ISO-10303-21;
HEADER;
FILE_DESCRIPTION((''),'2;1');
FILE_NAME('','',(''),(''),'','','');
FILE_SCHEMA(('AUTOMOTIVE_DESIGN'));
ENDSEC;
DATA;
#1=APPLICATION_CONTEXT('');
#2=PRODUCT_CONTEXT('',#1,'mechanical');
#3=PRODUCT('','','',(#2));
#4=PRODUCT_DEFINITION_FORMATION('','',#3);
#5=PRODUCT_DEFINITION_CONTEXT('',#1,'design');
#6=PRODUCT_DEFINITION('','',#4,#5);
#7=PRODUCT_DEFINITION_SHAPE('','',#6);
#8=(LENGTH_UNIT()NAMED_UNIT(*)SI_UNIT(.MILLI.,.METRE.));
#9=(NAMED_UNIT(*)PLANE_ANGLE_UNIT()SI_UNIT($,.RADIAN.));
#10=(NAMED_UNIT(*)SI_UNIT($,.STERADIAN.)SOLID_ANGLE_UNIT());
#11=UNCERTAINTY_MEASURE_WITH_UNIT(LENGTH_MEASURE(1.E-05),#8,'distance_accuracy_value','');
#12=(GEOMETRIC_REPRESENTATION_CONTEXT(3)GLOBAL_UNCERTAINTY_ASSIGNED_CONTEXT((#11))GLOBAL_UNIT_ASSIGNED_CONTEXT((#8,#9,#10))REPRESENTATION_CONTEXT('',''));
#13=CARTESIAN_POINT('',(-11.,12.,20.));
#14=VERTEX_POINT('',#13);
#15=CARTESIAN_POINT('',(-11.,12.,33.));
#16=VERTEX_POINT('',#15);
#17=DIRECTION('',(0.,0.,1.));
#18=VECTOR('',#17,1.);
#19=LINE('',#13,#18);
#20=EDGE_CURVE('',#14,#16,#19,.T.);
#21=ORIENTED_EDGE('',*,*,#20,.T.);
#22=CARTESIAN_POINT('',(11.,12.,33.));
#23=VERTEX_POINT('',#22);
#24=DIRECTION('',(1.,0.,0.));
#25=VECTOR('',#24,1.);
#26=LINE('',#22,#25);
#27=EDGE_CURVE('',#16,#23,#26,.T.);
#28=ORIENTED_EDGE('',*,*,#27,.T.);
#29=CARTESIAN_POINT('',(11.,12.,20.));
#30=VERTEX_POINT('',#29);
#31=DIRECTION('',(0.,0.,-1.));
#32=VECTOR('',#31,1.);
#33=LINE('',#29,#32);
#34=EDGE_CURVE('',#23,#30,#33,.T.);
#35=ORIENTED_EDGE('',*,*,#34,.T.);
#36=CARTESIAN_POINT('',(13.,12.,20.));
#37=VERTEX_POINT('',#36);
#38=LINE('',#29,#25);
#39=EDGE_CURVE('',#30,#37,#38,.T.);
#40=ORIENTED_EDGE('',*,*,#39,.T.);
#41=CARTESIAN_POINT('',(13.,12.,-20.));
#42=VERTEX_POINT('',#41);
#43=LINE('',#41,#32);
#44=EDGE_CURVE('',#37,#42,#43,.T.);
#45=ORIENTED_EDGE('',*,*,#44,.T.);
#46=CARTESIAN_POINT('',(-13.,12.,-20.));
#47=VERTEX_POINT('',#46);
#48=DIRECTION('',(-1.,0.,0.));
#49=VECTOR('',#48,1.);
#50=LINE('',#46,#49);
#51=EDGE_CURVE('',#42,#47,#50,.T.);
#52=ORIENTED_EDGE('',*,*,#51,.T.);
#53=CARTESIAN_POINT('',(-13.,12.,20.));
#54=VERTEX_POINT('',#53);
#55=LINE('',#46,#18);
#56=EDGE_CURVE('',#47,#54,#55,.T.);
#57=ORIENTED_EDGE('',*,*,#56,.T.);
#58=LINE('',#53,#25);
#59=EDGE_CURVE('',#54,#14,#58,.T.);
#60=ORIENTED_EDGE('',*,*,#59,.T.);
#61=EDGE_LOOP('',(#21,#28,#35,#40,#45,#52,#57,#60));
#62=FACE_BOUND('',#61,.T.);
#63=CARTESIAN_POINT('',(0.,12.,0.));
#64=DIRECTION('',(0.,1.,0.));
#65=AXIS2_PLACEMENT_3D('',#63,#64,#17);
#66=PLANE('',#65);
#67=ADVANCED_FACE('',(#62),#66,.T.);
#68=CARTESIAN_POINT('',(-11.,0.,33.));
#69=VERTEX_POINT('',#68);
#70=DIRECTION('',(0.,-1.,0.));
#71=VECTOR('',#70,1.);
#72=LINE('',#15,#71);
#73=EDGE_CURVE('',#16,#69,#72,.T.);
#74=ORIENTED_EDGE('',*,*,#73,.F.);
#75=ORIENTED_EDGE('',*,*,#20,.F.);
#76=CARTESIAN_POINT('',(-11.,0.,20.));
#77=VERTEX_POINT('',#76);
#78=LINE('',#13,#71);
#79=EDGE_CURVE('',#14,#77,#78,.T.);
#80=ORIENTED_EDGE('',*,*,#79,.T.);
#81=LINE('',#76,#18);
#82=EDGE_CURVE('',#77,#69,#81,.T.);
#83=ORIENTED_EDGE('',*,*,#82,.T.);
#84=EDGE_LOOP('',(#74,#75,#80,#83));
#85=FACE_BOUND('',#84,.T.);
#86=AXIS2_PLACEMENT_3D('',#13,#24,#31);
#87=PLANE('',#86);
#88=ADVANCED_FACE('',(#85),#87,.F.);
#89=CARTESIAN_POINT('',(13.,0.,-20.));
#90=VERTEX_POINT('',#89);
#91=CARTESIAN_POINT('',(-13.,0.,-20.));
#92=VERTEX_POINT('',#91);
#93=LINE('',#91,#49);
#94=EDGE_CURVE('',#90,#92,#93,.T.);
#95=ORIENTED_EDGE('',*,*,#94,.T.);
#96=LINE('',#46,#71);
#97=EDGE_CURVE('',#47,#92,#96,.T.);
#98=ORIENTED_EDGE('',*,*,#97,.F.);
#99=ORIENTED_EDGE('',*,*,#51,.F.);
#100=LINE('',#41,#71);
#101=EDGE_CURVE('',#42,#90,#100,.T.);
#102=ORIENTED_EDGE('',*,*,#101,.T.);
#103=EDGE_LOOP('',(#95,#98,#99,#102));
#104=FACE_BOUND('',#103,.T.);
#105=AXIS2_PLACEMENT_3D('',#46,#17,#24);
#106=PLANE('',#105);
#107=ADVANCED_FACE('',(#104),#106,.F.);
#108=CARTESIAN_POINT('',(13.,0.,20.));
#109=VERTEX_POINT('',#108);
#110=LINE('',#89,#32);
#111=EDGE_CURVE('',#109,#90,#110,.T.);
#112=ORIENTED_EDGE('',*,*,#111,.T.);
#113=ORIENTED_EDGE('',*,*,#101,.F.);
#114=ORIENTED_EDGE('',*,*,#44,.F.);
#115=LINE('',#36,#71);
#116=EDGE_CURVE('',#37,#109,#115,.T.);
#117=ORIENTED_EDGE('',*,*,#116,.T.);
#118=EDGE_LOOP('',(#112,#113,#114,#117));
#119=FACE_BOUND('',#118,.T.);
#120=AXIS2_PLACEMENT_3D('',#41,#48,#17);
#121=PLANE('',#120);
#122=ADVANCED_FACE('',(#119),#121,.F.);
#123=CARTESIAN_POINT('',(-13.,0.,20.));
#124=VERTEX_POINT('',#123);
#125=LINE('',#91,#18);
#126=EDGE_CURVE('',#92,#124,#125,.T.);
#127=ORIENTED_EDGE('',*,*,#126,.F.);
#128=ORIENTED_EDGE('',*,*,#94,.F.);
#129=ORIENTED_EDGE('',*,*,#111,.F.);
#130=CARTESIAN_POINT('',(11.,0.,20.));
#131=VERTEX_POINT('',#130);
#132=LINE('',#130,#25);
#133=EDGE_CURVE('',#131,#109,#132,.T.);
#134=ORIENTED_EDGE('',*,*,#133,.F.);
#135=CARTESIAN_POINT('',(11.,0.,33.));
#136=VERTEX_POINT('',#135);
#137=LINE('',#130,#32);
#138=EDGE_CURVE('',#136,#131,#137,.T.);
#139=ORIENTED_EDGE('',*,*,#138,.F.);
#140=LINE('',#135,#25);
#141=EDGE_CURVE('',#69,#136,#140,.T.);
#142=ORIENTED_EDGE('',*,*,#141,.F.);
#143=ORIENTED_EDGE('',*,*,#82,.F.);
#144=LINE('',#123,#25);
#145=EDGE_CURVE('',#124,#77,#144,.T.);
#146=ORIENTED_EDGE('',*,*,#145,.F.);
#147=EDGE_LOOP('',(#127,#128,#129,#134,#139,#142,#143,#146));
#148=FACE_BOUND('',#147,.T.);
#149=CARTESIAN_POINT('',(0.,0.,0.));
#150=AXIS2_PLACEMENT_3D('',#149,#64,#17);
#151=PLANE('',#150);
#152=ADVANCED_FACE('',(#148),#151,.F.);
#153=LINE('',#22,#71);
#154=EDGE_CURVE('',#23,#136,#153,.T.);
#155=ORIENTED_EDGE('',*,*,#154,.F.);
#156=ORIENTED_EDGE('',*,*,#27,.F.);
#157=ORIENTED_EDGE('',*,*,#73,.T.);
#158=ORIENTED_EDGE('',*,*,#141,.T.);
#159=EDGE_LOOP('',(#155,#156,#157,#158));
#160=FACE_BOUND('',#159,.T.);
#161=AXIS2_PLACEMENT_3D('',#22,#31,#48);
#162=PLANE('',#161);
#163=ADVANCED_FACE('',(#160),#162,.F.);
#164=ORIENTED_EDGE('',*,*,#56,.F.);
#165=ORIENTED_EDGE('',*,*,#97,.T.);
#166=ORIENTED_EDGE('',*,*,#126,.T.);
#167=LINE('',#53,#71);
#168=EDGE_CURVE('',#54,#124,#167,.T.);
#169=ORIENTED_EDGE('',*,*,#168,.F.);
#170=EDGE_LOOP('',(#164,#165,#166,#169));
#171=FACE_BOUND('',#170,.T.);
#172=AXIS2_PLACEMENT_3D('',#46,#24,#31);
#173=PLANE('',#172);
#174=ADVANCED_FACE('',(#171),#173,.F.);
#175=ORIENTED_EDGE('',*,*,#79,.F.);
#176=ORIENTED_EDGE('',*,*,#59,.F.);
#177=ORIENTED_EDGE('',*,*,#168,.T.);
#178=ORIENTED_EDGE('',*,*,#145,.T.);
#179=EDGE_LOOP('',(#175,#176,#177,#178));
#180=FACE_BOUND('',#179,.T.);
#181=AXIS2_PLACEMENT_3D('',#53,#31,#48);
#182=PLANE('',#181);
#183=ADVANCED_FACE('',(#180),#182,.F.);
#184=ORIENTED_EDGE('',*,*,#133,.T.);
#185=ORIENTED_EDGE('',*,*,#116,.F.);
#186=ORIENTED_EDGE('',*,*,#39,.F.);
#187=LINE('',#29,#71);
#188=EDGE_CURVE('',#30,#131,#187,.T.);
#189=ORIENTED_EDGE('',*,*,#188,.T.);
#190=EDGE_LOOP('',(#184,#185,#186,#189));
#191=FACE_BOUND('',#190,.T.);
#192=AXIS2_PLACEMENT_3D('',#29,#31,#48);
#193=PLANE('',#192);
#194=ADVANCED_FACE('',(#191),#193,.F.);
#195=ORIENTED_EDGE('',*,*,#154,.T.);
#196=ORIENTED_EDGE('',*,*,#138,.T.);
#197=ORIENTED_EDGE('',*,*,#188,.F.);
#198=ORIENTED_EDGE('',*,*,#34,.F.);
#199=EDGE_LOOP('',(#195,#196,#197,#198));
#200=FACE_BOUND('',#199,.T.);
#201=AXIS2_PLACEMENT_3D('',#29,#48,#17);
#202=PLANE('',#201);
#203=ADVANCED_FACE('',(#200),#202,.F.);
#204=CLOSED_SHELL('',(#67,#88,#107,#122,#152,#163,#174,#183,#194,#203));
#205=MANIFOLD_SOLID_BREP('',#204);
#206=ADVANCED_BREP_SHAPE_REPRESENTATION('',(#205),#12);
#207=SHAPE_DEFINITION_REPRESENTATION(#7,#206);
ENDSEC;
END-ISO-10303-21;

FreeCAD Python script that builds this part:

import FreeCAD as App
import Part
import Sketcher

V = App.Vector
Q = App.Units.Quantity

doc = App.newDocument("Part")
body = doc.addObject("PartDesign::Body", "Body")

# Sketch on XZ plane
sketch1 = body.newObject("Sketcher::SketchObject", "Sketch")
sketch1.AttachmentSupport = (doc.getObject("XZ_Plane"), [""])
sketch1.MapMode = "FlatFace"
sketch1.addGeometry(Part.LineSegment(V(11, 20, 0), V(13, 20, 0)), False)
sketch1.addGeometry(Part.LineSegment(V(13, 20, 0), V(13, -20, 0)), False)
sketch1.addGeometry(Part.LineSegment(V(13, -20, 0), V(-13, -20, 0)), False)
sketch1.addGeometry(Part.LineSegment(V(-13, -20, 0), V(-13, 20, 0)), False)
sketch1.addGeometry(Part.LineSegment(V(-13, 20, 0), V(-11, 20, 0)), False)
sketch1.addGeometry(Part.LineSegment(V(-11, 20, 0), V(-11, 33, 0)), False)
sketch1.addGeometry(Part.LineSegment(V(-11, 33, 0), V(11, 33, 0)), False)
sketch1.addGeometry(Part.LineSegment(V(11, 33, 0), V(11, 20, 0)), False)
sketch1.addConstraint(Sketcher.Constraint("Coincident", 0, 2, 1, 1))
sketch1.addConstraint(Sketcher.Constraint("Coincident", 1, 2, 2, 1))
sketch1.addConstraint(Sketcher.Constraint("Coincident", 2, 2, 3, 1))
sketch1.addConstraint(Sketcher.Constraint("Coincident", 3, 2, 4, 1))
sketch1.addConstraint(Sketcher.Constraint("Coincident", 4, 2, 5, 1))
sketch1.addConstraint(Sketcher.Constraint("Coincident", 5, 2, 6, 1))
sketch1.addConstraint(Sketcher.Constraint("Coincident", 6, 2, 7, 1))
sketch1.addConstraint(Sketcher.Constraint("Coincident", 7, 2, 0, 1))
sketch1.addConstraint(Sketcher.Constraint("Horizontal", 0))
sketch1.addConstraint(Sketcher.Constraint("Vertical", 1))
sketch1.addConstraint(Sketcher.Constraint("Horizontal", 2))
sketch1.addConstraint(Sketcher.Constraint("Vertical", 3))
sketch1.addConstraint(Sketcher.Constraint("Horizontal", 4))
sketch1.addConstraint(Sketcher.Constraint("Vertical", 5))
sketch1.addConstraint(Sketcher.Constraint("Horizontal", 6))
sketch1.addConstraint(Sketcher.Constraint("Vertical", 7))
sketch1.addConstraint(Sketcher.Constraint("Symmetric", 0, 2, 2, 2, -1, 1))
sketch1.addConstraint(Sketcher.Constraint("Symmetric", 4, 2, 7, 2, -2))
sketch1.addConstraint(Sketcher.Constraint("DistanceX", 0, 1, 0, 2, Q("2 mm")))
sketch1.addConstraint(Sketcher.Constraint("DistanceX", 2, 2, 2, 1, Q("26 mm")))
sketch1.addConstraint(Sketcher.Constraint("DistanceY", 1, 2, 1, 1, Q("40 mm")))
sketch1.addConstraint(Sketcher.Constraint("DistanceY", 5, 1, 5, 2, Q("13 mm")))
pad1 = body.newObject("PartDesign::Pad", "Pad")
pad1.Profile = sketch1
pad1.Length = 12
pad1.Reversed = True

doc.recompute()
